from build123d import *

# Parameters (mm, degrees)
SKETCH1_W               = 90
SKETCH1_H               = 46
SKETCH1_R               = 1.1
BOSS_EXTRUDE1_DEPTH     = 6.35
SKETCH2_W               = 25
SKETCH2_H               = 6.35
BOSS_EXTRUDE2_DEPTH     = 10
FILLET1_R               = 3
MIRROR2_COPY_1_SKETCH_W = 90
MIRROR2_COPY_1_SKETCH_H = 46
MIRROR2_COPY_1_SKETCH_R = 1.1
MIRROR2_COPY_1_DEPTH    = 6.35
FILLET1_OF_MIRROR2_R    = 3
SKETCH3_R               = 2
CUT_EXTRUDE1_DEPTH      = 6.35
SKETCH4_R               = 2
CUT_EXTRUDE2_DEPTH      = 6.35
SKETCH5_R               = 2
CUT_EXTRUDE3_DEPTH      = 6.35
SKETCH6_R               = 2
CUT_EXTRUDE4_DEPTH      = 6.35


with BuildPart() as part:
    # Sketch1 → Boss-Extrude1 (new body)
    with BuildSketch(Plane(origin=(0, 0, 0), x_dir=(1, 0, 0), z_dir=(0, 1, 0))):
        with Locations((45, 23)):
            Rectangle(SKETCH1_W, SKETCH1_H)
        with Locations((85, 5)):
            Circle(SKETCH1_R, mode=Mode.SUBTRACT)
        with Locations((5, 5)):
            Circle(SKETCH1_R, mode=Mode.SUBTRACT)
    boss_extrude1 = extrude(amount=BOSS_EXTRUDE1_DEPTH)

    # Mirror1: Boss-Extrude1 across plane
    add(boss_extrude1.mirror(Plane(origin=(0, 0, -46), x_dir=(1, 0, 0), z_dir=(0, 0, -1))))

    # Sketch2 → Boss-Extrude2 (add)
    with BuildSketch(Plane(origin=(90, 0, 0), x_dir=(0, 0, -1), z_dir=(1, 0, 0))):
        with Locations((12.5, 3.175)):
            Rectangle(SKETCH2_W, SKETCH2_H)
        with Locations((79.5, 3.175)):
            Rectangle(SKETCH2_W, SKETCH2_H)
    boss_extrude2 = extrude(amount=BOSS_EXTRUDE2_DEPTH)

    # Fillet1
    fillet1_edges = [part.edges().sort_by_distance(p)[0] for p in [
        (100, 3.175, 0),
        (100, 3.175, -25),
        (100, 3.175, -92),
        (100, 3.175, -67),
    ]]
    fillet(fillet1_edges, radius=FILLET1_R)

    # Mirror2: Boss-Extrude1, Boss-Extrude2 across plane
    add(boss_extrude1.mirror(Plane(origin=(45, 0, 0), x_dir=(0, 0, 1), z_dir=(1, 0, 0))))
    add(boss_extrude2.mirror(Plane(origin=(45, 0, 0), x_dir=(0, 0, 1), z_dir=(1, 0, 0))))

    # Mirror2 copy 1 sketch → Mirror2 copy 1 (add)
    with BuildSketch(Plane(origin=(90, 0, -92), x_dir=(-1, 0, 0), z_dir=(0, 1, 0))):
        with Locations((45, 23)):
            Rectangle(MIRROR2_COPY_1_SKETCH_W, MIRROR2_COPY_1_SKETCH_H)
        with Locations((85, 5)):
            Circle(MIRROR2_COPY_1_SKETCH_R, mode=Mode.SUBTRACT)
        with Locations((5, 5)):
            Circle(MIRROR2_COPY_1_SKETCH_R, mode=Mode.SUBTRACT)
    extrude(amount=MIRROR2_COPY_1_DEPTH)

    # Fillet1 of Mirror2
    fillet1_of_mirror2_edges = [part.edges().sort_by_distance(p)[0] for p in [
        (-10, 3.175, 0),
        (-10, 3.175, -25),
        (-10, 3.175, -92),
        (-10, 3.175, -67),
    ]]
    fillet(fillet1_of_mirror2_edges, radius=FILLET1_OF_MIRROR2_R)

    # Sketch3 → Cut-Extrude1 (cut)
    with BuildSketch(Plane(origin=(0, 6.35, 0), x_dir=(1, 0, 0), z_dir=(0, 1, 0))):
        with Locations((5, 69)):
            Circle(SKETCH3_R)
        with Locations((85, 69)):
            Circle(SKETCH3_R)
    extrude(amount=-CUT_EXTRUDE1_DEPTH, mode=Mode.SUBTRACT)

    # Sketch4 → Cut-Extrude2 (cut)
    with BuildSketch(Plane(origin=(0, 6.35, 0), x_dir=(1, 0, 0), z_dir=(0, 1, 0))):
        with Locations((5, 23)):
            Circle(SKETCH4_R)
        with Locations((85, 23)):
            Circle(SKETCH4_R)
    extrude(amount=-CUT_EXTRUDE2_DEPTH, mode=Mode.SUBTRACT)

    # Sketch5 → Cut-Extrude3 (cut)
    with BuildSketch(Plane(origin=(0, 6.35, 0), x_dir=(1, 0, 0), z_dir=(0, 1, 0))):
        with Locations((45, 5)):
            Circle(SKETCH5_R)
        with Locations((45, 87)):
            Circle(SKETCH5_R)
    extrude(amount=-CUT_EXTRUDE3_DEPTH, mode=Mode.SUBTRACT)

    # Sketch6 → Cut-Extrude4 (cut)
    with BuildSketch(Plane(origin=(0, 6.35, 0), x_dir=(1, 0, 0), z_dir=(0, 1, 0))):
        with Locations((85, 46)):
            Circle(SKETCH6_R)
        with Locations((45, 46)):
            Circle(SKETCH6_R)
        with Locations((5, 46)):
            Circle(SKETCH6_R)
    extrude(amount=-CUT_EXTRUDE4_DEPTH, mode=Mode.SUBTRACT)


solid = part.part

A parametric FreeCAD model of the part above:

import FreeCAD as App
import Part
import Sketcher
Q = App.Units.Quantity


def edges_at(feature, points):
    """Names of the edges that pass closest to the given points."""
    edges = feature.Shape.Edges
    near = lambda p: min(range(len(edges)), key=lambda i: edges[i].distToShape(Part.Vertex(*p))[0])
    return sorted({f"Edge{near(p) + 1}" for p in points})

doc = App.newDocument("Part")
params = doc.addObject("Spreadsheet::Sheet", "Params")
for row, (alias, value) in enumerate([
    ("sketch1_diameter", "2.2 mm"),
    ("sketch1_width", "90 mm"),
    ("sketch1_height", "46 mm"),
    ("pad1_length", "6.35 mm"),
    ("sketch2_height", "25 mm"),
    ("sketch2_width", "6.35 mm"),
    ("pad2_length", "10 mm"),
    ("fillet_radius", "3 mm"),
    ("sketch3_diameter", "2.2 mm"),
    ("sketch3_width", "90 mm"),
    ("sketch3_height", "46 mm"),
    ("pad3_length", "6.35 mm"),
    ("fillet2_radius", "3 mm"),
    ("sketch4_diameter", "4 mm"),
    ("pocket1_length", "6.35 mm"),
    ("sketch5_diameter", "4 mm"),
    ("pocket2_length", "6.35 mm"),
    ("sketch6_diameter", "4 mm"),
    ("pocket3_length", "6.35 mm"),
    ("sketch7_diameter", "4 mm"),
    ("pocket4_length", "6.35 mm"),
], start=1):
    params.set(f"A{row}", alias)
    params.set(f"B{row}", "=" + value)
    params.setAlias(f"B{row}", alias)

body = doc.addObject("PartDesign::Body", "Body")

# Sketch on XZ plane
sketch1 = body.newObject("Sketcher::SketchObject", "Sketch")
sketch1.AttachmentSupport = (doc.getObject("XZ_Plane"), [""])
sketch1.MapMode = "FlatFace"
sketch1.addGeometry([
    Part.LineSegment(App.Vector(0, -46, 0), App.Vector(0, 0, 0)),  # 0
    Part.LineSegment(App.Vector(0, 0, 0), App.Vector(90, 0, 0)),  # 1
    Part.LineSegment(App.Vector(90, 0, 0), App.Vector(90, -46, 0)),  # 2
    Part.LineSegment(App.Vector(90, -46, 0), App.Vector(0, -46, 0)),  # 3
    Part.Circle(App.Vector(5, -5, 0), App.Vector(0, 0, 1), 1.1),  # 4
    Part.Circle(App.Vector(85, -5, 0), App.Vector(0, 0, 1), 1.1),  # 5
], False)
sketch1.addConstraint([
    Sketcher.Constraint("Coincident", 0, 2, 1, 1),
    Sketcher.Constraint("Coincident", 1, 2, 2, 1),
    Sketcher.Constraint("Coincident", 2, 2, 3, 1),
    Sketcher.Constraint("Coincident", 3, 2, 0, 1),
    Sketcher.Constraint("Vertical", 0),
    Sketcher.Constraint("Horizontal", 1),
    Sketcher.Constraint("Vertical", 2),
    Sketcher.Constraint("Horizontal", 3),
    Sketcher.Constraint("Coincident", 0, 2, -1, 1),
    Sketcher.Constraint("Equal", 4, 5),
    Sketcher.Constraint("Horizontal", 4, 3, 5, 3),
    Sketcher.Constraint("Diameter", 4, Q("2.2 mm")),
    Sketcher.Constraint("DistanceX", 1, 1, 1, 2, Q("90 mm")),
    Sketcher.Constraint("DistanceY", 0, 1, 0, 2, Q("46 mm")),
    Sketcher.Constraint("DistanceX", -1, 1, 4, 3, Q("5 mm")),
    Sketcher.Constraint("DistanceY", 4, 3, -1, 1, Q("5 mm")),
    Sketcher.Constraint("DistanceX", -1, 1, 5, 3, Q("85 mm")),
])
sketch1.setExpression("Constraints[11]", "Params.sketch1_diameter")
sketch1.setExpression("Constraints[12]", "Params.sketch1_width")
sketch1.setExpression("Constraints[13]", "Params.sketch1_height")
pad1 = body.newObject("PartDesign::Pad", "Pad")
pad1.Profile = sketch1
pad1.setExpression("Length", "Params.pad1_length")
pad1.Reversed = True
doc.recompute()

datumplane = body.newObject("PartDesign::Plane", "DatumPlane")
datumplane.AttachmentSupport = (doc.getObject("XY_Plane"), [""])
datumplane.MapMode = "FlatFace"
datumplane.AttachmentOffset = App.Placement(App.Vector(0, 0, -46), App.Rotation())
mirrored = body.newObject("PartDesign::Mirrored", "Mirrored")
mirrored.Originals = [pad1]
mirrored.MirrorPlane = (datumplane, [""])
body.Tip = mirrored

# Sketch on YZ plane
sketch2 = body.newObject("Sketcher::SketchObject", "Sketch001")
sketch2.AttachmentSupport = (doc.getObject("YZ_Plane"), [""])
sketch2.MapMode = "FlatFace"
sketch2.AttachmentOffset = App.Placement(App.Vector(0, 0, 90), App.Rotation())
sketch2.addGeometry([
    Part.LineSegment(App.Vector(6, 0, 0), App.Vector(0, 0, 0)),  # 0
    Part.LineSegment(App.Vector(0, 0, 0), App.Vector(0, -25, 0)),  # 1
    Part.LineSegment(App.Vector(0, -25, 0), App.Vector(6, -25, 0)),  # 2
    Part.LineSegment(App.Vector(6, -25, 0), App.Vector(6, 0, 0)),  # 3
    Part.LineSegment(App.Vector(6, -67, 0), App.Vector(0, -67, 0)),  # 4
    Part.LineSegment(App.Vector(0, -67, 0), App.Vector(0, -92, 0)),  # 5
    Part.LineSegment(App.Vector(0, -92, 0), App.Vector(6, -92, 0)),  # 6
    Part.LineSegment(App.Vector(6, -92, 0), App.Vector(6, -67, 0)),  # 7
], False)
sketch2.addConstraint([
    Sketcher.Constraint("Coincident", 0, 2, 1, 1),
    Sketcher.Constraint("Coincident", 1, 2, 2, 1),
    Sketcher.Constraint("Coincident", 2, 2, 3, 1),
    Sketcher.Constraint("Coincident", 3, 2, 0, 1),
    Sketcher.Constraint("Coincident", 4, 2, 5, 1),
    Sketcher.Constraint("Coincident", 5, 2, 6, 1),
    Sketcher.Constraint("Coincident", 6, 2, 7, 1),
    Sketcher.Constraint("Coincident", 7, 2, 4, 1),
    Sketcher.Constraint("Horizontal", 0),
    Sketcher.Constraint("Vertical", 1),
    Sketcher.Constraint("Horizontal", 2),
    Sketcher.Constraint("Vertical", 3),
    Sketcher.Constraint("Horizontal", 4),
    Sketcher.Constraint("Vertical", 5),
    Sketcher.Constraint("Horizontal", 6),
    Sketcher.Constraint("Vertical", 7),
    Sketcher.Constraint("Coincident", 0, 2, -1, 1),
    Sketcher.Constraint("PointOnObject", 4, 2, -2),
    Sketcher.Constraint("Vertical", 3, 2, 6, 2),
    Sketcher.Constraint("Equal", 3, 5),
    Sketcher.Constraint("DistanceY", 1, 2, 1, 1, Q("25 mm")),
    Sketcher.Constraint("DistanceY", 4, 2, -1, 1, Q("67 mm")),
    Sketcher.Constraint("DistanceX", 0, 2, 0, 1, Q("6.35 mm")),
])
sketch2.setExpression("Constraints[20]", "Params.sketch2_height")
sketch2.setExpression("Constraints[22]", "Params.sketch2_width")
pad2 = body.newObject("PartDesign::Pad", "Pad001")
pad2.Profile = sketch2
pad2.setExpression("Length", "Params.pad2_length")
doc.recompute()

fillet = body.newObject("PartDesign::Fillet", "Fillet")
fillet.Base = (pad2, edges_at(pad2, [
    (100, 3.175, 0),
    (100, 3.175, -25),
    (100, 3.175, -92),
    (100, 3.175, -67),
]))
fillet.setExpression("Radius", "Params.fillet_radius")
doc.recompute()

datumplane2 = body.newObject("PartDesign::Plane", "DatumPlane001")
datumplane2.AttachmentSupport = (doc.getObject("YZ_Plane"), [""])
datumplane2.MapMode = "FlatFace"
datumplane2.AttachmentOffset = App.Placement(App.Vector(0, 0, 45), App.Rotation())
mirrored2 = body.newObject("PartDesign::Mirrored", "Mirrored001")
mirrored2.Originals = [pad1, pad2]
mirrored2.MirrorPlane = (datumplane2, [""])
body.Tip = mirrored2

# Sketch on XZ plane
sketch3 = body.newObject("Sketcher::SketchObject", "Sketch002")
sketch3.AttachmentSupport = (doc.getObject("XZ_Plane"), [""])
sketch3.MapMode = "FlatFace"
sketch3.addGeometry([
    Part.LineSegment(App.Vector(90, -46, 0), App.Vector(90, -92, 0)),  # 0
    Part.LineSegment(App.Vector(90, -92, 0), App.Vector(0, -92, 0)),  # 1
    Part.LineSegment(App.Vector(0, -92, 0), App.Vector(0, -46, 0)),  # 2
    Part.LineSegment(App.Vector(0, -46, 0), App.Vector(90, -46, 0)),  # 3
    Part.Circle(App.Vector(85, -87, 0), App.Vector(0, 0, 1), 1.1),  # 4
    Part.Circle(App.Vector(5, -87, 0), App.Vector(0, 0, 1), 1.1),  # 5
], False)
sketch3.addConstraint([
    Sketcher.Constraint("Coincident", 0, 2, 1, 1),
    Sketcher.Constraint("Coincident", 1, 2, 2, 1),
    Sketcher.Constraint("Coincident", 2, 2, 3, 1),
    Sketcher.Constraint("Coincident", 3, 2, 0, 1),
    Sketcher.Constraint("Vertical", 0),
    Sketcher.Constraint("Horizontal", 1),
    Sketcher.Constraint("Vertical", 2),
    Sketcher.Constraint("Horizontal", 3),
    Sketcher.Constraint("Equal", 4, 5),
    Sketcher.Constraint("PointOnObject", 1, 2, -2),
    Sketcher.Constraint("Horizontal", 4, 3, 5, 3),
    Sketcher.Constraint("Diameter", 4, Q("2.2 mm")),
    Sketcher.Constraint("DistanceX", 1, 2, 1, 1, Q("90 mm")),
    Sketcher.Constraint("DistanceY", 0, 2, 0, 1, Q("46 mm")),
    Sketcher.Constraint("DistanceX", -1, 1, 4, 3, Q("85 mm")),
    Sketcher.Constraint("DistanceY", 4, 3, -1, 1, Q("87 mm")),
    Sketcher.Constraint("DistanceX", -1, 1, 5, 3, Q("5 mm")),
    Sketcher.Constraint("DistanceY", 0, 2, -1, 1, Q("92 mm")),
])
sketch3.setExpression("Constraints[11]", "Params.sketch3_diameter")
sketch3.setExpression("Constraints[12]", "Params.sketch3_width")
sketch3.setExpression("Constraints[13]", "Params.sketch3_height")
pad3 = body.newObject("PartDesign::Pad", "Pad002")
pad3.Profile = sketch3
pad3.setExpression("Length", "Params.pad3_length")
pad3.Reversed = True
doc.recompute()

fillet2 = body.newObject("PartDesign::Fillet", "Fillet001")
fillet2.Base = (pad3, edges_at(pad3, [
    (-10, 3.175, 0),
    (-10, 3.175, -25),
    (-10, 3.175, -92),
    (-10, 3.175, -67),
]))
fillet2.setExpression("Radius", "Params.fillet2_radius")

# Sketch on XZ plane
sketch4 = body.newObject("Sketcher::SketchObject", "Sketch003")
sketch4.AttachmentSupport = (doc.getObject("XZ_Plane"), [""])
sketch4.MapMode = "FlatFace"
sketch4.AttachmentOffset = App.Placement(App.Vector(0, 0, -6.35), App.Rotation())
sketch4.addGeometry([
    Part.Circle(App.Vector(5, -69, 0), App.Vector(0, 0, 1), 2),
    Part.Circle(App.Vector(85, -69, 0), App.Vector(0, 0, 1), 2),
], False)
sketch4.addConstraint([
    Sketcher.Constraint("Equal", 0, 1),
    Sketcher.Constraint("Horizontal", 0, 3, 1, 3),
    Sketcher.Constraint("Diameter", 0, Q("4 mm")),
    Sketcher.Constraint("DistanceX", -1, 1, 0, 3, Q("5 mm")),
    Sketcher.Constraint("DistanceY", 0, 3, -1, 1, Q("69 mm")),
    Sketcher.Constraint("DistanceX", -1, 1, 1, 3, Q("85 mm")),
])
sketch4.setExpression("Constraints[2]", "Params.sketch4_diameter")
pocket1 = body.newObject("PartDesign::Pocket", "Pocket")
pocket1.Profile = sketch4
pocket1.setExpression("Length", "Params.pocket1_length")
pocket1.Reversed = True

# Sketch on XZ plane
sketch5 = body.newObject("Sketcher::SketchObject", "Sketch004")
sketch5.AttachmentSupport = (doc.getObject("XZ_Plane"), [""])
sketch5.MapMode = "FlatFace"
sketch5.AttachmentOffset = App.Placement(App.Vector(0, 0, -6.35), App.Rotation())
sketch5.addGeometry([
    Part.Circle(App.Vector(5, -23, 0), App.Vector(0, 0, 1), 2),
    Part.Circle(App.Vector(85, -23, 0), App.Vector(0, 0, 1), 2),
], False)
sketch5.addConstraint([
    Sketcher.Constraint("Equal", 0, 1),
    Sketcher.Constraint("Horizontal", 0, 3, 1, 3),
    Sketcher.Constraint("Diameter", 0, Q("4 mm")),
    Sketcher.Constraint("DistanceX", -1, 1, 0, 3, Q("5 mm")),
    Sketcher.Constraint("DistanceY", 0, 3, -1, 1, Q("23 mm")),
    Sketcher.Constraint("DistanceX", -1, 1, 1, 3, Q("85 mm")),
])
sketch5.setExpression("Constraints[2]", "Params.sketch5_diameter")
pocket2 = body.newObject("PartDesign::Pocket", "Pocket001")
pocket2.Profile = sketch5
pocket2.setExpression("Length", "Params.pocket2_length")
pocket2.Reversed = True

# Sketch on XZ plane
sketch6 = body.newObject("Sketcher::SketchObject", "Sketch005")
sketch6.AttachmentSupport = (doc.getObject("XZ_Plane"), [""])
sketch6.MapMode = "FlatFace"
sketch6.AttachmentOffset = App.Placement(App.Vector(0, 0, -6.35), App.Rotation())
sketch6.addGeometry([
    Part.Circle(App.Vector(45, -5, 0), App.Vector(0, 0, 1), 2),
    Part.Circle(App.Vector(45, -87, 0), App.Vector(0, 0, 1), 2),
], False)
sketch6.addConstraint([
    Sketcher.Constraint("Equal", 0, 1),
    Sketcher.Constraint("Vertical", 0, 3, 1, 3),
    Sketcher.Constraint("Diameter", 0, Q("4 mm")),
    Sketcher.Constraint("DistanceX", -1, 1, 0, 3, Q("45 mm")),
    Sketcher.Constraint("DistanceY", 0, 3, -1, 1, Q("5 mm")),
    Sketcher.Constraint("DistanceY", 1, 3, -1, 1, Q("87 mm")),
])
sketch6.setExpression("Constraints[2]", "Params.sketch6_diameter")
pocket3 = body.newObject("PartDesign::Pocket", "Pocket002")
pocket3.Profile = sketch6
pocket3.setExpression("Length", "Params.pocket3_length")
pocket3.Reversed = True

# Sketch on XZ plane
sketch7 = body.newObject("Sketcher::SketchObject", "Sketch006")
sketch7.AttachmentSupport = (doc.getObject("XZ_Plane"), [""])
sketch7.MapMode = "FlatFace"
sketch7.AttachmentOffset = App.Placement(App.Vector(0, 0, -6.35), App.Rotation())
sketch7.addGeometry([
    Part.Circle(App.Vector(85, -46, 0), App.Vector(0, 0, 1), 2),
    Part.Circle(App.Vector(45, -46, 0), App.Vector(0, 0, 1), 2),
    Part.Circle(App.Vector(5, -46, 0), App.Vector(0, 0, 1), 2),
], False)
sketch7.addConstraint([
    Sketcher.Constraint("Equal", 0, 1),
    Sketcher.Constraint("Equal", 1, 2),
    Sketcher.Constraint("Horizontal", 0, 3, 1, 3),
    Sketcher.Constraint("Horizontal", 1, 3, 2, 3),
    Sketcher.Constraint("Diameter", 0, Q("4 mm")),
    Sketcher.Constraint("DistanceX", -1, 1, 0, 3, Q("85 mm")),
    Sketcher.Constraint("DistanceY", 0, 3, -1, 1, Q("46 mm")),
    Sketcher.Constraint("DistanceX", -1, 1, 1, 3, Q("45 mm")),
    Sketcher.Constraint("DistanceX", -1, 1, 2, 3, Q("5 mm")),
])
sketch7.setExpression("Constraints[4]", "Params.sketch7_diameter")
pocket4 = body.newObject("PartDesign::Pocket", "Pocket003")
pocket4.Profile = sketch7
pocket4.setExpression("Length", "Params.pocket4_length")
pocket4.Reversed = True

doc.recompute()
